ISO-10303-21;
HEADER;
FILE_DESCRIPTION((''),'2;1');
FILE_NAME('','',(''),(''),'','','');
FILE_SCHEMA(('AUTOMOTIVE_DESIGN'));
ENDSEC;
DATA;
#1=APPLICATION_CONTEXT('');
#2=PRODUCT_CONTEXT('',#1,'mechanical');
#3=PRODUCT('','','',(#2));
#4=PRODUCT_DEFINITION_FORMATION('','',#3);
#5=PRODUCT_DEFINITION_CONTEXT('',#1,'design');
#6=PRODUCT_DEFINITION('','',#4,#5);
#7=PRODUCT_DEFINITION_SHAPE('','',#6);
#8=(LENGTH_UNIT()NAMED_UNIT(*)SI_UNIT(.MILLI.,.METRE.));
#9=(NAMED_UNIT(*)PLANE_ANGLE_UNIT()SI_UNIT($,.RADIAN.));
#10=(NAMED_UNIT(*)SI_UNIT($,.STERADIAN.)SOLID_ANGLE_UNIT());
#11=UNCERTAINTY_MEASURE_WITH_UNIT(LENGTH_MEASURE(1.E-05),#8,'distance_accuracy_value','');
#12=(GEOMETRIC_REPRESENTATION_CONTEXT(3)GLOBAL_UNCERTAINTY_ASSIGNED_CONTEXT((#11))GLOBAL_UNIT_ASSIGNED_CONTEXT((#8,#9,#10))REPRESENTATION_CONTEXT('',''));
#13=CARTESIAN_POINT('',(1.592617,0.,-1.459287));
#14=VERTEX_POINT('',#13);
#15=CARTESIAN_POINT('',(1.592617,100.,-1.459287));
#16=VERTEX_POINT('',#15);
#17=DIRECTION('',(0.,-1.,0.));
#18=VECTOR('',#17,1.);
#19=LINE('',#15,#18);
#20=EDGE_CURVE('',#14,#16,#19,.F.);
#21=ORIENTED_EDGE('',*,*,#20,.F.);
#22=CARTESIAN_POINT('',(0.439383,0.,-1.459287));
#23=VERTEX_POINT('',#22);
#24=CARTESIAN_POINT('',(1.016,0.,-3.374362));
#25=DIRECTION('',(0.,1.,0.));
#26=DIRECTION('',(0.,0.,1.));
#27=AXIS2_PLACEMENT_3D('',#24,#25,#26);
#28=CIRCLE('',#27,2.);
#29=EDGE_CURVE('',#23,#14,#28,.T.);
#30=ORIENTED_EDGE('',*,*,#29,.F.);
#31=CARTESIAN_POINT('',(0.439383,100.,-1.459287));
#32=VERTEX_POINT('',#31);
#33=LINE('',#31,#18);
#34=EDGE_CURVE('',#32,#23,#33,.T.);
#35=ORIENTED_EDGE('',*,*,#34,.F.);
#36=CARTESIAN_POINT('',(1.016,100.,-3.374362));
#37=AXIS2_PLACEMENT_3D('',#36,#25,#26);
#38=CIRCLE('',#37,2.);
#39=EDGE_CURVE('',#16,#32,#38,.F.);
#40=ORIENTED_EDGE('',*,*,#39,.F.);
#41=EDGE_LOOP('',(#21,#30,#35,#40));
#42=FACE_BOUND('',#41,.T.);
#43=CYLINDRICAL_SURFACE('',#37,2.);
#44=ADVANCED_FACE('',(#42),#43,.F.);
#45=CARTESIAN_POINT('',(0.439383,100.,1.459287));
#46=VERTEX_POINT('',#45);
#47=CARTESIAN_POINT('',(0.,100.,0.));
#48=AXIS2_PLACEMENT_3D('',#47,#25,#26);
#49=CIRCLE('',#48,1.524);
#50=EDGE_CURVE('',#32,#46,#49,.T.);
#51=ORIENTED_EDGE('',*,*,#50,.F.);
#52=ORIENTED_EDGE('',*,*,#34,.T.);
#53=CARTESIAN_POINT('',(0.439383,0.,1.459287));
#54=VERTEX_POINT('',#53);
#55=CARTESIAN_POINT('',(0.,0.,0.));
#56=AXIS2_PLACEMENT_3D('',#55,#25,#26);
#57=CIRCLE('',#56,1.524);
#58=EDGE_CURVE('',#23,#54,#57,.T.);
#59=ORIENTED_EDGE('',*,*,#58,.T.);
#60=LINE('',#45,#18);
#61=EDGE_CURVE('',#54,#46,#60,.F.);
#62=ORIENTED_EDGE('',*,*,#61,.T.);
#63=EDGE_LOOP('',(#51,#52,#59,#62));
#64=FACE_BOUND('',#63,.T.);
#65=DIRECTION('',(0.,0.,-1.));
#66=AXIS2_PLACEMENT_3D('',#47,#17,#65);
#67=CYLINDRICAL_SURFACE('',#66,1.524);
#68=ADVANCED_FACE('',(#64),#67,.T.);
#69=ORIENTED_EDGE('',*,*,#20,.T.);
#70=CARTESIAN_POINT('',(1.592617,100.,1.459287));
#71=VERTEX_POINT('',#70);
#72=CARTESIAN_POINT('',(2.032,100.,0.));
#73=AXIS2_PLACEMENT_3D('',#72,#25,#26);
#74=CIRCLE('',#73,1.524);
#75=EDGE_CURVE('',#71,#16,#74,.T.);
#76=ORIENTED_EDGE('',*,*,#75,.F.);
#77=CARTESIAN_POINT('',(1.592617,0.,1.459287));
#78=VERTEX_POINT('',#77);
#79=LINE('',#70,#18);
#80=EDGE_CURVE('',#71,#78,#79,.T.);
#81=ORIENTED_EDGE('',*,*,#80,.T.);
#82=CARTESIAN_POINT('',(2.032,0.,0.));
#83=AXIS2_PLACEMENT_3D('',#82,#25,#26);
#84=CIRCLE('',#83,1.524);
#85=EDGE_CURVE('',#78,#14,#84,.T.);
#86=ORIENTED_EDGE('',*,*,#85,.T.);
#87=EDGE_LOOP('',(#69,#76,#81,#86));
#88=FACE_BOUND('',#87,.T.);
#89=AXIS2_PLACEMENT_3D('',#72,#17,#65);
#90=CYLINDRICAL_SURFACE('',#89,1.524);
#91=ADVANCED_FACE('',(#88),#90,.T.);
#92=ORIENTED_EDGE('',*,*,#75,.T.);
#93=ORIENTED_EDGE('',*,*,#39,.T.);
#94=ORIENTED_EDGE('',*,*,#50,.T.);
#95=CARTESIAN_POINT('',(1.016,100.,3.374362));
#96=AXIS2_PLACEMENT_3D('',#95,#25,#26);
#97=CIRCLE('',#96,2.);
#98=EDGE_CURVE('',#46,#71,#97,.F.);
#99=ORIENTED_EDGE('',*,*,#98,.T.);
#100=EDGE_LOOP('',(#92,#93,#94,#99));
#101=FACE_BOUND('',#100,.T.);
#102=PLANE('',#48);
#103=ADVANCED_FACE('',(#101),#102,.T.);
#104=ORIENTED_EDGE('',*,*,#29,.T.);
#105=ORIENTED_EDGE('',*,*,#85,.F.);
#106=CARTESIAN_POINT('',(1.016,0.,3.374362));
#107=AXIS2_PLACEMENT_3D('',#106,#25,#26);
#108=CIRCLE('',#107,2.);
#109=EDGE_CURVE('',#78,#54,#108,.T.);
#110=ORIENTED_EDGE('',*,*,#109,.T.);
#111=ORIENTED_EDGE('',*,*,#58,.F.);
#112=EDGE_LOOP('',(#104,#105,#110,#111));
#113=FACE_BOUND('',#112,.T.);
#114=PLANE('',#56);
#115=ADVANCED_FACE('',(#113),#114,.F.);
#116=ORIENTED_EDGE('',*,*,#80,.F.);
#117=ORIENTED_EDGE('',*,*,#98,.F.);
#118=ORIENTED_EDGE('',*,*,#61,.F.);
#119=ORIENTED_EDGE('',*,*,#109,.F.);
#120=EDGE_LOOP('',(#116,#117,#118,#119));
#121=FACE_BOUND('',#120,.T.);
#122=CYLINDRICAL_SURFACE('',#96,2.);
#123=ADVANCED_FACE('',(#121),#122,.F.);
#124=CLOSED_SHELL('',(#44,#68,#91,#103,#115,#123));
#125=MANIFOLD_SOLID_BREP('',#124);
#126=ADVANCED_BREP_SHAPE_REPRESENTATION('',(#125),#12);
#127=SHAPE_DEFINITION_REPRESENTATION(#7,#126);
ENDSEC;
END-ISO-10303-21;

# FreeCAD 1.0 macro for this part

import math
import FreeCAD as App
import Part
import Sketcher

V = App.Vector


def edges_at(feature, points):
    """Names of the edges that pass closest to the given points."""
    edges = feature.Shape.Edges
    near = lambda p: min(range(len(edges)), key=lambda i: edges[i].distToShape(Part.Vertex(*p))[0])
    return sorted({f"Edge{near(p) + 1}" for p in points})

doc = App.newDocument("Part")
body = doc.addObject("PartDesign::Body", "Body")

sketch1 = doc.addObject("Sketcher::SketchObject", "Sketch")
body.addObject(sketch1)
sketch1.AttachmentSupport = (doc.XZ_Plane, [""])
sketch1.MapMode = "FlatFace"
sketch1.addGeometry(Part.ArcOfCircle(Part.Circle(V(0, 0, 0), V(0, 0, 1), 1.5), math.radians(48), math.radians(312)), False)
sketch1.addGeometry(Part.ArcOfCircle(Part.Circle(V(2, 0, 0), V(0, 0, 1), 1.5), math.radians(-132), math.radians(132)), False)
sketch1.addConstraint(Sketcher.Constraint("Coincident", 0, 1, 1, 2))
sketch1.addConstraint(Sketcher.Constraint("Coincident", 1, 1, 0, 2))
sketch1.addConstraint(Sketcher.Constraint("Coincident", 0, 3, -1, 1))
sketch1.addConstraint(Sketcher.Constraint("Equal", 0, 1))
sketch1.addConstraint(Sketcher.Constraint("PointOnObject", 1, 3, -1))
sketch1.addConstraint(Sketcher.Constraint("Radius", 0, 1.524))
sketch1.addConstraint(Sketcher.Constraint("DistanceX", -1, 1, 1, 3, 2.032))
pad1 = doc.addObject("PartDesign::Pad", "Pad")
body.addObject(pad1)
pad1.Profile = sketch1
pad1.Length = 100
pad1.Reversed = True
doc.recompute()

fillet = doc.addObject("PartDesign::Fillet", "Fillet")
body.addObject(fillet)
fillet.Base = (pad1, edges_at(pad1, [(1.016, 50, 1.136), (1.016, 50, -1.136)]))
fillet.Radius = 2

doc.recompute()
